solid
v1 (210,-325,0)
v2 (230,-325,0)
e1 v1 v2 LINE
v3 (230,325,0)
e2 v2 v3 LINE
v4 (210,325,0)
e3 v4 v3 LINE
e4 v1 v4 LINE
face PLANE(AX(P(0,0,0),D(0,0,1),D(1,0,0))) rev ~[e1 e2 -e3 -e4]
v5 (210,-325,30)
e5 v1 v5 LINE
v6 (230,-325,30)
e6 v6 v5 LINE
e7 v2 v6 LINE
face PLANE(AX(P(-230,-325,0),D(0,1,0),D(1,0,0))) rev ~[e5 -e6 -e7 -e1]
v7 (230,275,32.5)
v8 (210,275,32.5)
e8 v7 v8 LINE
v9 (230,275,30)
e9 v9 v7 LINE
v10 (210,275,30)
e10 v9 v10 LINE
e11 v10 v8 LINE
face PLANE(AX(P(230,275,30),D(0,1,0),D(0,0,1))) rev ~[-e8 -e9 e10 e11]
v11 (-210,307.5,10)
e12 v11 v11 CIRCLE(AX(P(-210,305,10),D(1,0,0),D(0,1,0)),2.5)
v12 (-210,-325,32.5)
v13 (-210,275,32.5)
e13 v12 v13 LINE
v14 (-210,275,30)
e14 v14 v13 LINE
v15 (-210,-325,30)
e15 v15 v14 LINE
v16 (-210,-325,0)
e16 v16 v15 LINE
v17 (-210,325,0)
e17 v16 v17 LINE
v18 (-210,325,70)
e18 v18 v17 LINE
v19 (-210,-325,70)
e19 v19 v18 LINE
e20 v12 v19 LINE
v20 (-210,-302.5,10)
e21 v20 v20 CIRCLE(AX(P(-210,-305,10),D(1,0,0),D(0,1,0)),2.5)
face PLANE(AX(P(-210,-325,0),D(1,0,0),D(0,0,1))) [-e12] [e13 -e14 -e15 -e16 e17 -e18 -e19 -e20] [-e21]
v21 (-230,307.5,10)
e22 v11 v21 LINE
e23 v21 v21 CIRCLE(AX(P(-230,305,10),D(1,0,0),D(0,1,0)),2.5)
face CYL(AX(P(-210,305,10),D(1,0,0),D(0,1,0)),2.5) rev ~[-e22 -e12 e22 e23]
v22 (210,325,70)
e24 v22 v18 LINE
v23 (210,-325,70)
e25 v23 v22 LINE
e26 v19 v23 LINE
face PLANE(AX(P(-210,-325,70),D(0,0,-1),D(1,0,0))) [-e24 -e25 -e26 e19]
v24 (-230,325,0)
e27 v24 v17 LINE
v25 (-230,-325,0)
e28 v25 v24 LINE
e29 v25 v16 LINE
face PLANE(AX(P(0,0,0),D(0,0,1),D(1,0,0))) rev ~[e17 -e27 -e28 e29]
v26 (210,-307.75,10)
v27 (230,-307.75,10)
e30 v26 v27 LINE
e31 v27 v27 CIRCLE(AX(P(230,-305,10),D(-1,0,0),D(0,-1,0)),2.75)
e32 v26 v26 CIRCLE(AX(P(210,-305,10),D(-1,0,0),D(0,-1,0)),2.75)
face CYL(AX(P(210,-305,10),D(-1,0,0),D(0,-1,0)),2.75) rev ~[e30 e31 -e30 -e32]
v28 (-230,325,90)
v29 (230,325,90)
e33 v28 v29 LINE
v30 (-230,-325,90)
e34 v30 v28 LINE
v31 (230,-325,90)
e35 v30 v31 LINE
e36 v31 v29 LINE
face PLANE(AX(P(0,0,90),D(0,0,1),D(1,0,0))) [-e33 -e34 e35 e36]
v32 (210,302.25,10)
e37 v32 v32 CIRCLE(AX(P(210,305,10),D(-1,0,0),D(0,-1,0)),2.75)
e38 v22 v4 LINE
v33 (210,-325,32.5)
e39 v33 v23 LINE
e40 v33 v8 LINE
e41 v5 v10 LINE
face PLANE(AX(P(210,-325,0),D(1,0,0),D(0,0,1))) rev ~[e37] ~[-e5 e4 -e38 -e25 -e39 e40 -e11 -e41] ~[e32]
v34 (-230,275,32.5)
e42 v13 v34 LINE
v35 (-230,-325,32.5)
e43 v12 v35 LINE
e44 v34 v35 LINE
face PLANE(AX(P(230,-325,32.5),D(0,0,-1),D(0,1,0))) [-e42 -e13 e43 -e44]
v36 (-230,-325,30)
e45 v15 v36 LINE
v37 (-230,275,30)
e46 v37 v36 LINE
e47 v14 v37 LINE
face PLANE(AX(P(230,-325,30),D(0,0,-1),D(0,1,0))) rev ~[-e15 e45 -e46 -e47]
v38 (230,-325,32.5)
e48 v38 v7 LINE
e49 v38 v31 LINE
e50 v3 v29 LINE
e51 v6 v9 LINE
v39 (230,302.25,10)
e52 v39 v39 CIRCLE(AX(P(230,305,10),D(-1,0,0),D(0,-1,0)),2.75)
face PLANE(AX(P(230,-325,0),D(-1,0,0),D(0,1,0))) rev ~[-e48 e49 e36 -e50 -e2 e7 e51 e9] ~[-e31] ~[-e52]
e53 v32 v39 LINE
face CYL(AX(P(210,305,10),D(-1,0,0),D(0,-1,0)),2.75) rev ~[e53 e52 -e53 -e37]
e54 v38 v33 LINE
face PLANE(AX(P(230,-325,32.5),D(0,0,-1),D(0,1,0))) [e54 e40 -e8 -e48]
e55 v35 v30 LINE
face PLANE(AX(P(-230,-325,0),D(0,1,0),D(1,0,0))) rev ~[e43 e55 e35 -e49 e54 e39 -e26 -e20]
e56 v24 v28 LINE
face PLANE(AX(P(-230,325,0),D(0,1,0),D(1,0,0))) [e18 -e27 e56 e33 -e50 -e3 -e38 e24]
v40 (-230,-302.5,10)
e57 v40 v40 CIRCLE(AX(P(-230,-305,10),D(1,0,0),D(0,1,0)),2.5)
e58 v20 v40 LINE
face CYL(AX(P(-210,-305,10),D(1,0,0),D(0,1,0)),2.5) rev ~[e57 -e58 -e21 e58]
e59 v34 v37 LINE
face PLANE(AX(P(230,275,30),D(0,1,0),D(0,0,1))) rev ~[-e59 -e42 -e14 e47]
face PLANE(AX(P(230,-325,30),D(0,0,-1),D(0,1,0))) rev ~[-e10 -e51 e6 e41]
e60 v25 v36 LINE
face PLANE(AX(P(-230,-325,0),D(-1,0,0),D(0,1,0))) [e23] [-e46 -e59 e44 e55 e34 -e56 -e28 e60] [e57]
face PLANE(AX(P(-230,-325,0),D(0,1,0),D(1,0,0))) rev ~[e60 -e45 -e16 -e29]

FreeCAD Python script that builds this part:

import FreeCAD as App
import Part
import Sketcher
from FreeCAD import Vector
Q = App.Units.Quantity


def add_polygon(sketch, points):
    """Adds a closed chain of lines whose ends are joined by coincident constraints."""
    first, n = sketch.GeometryCount, len(points)
    for a, b in zip(points, points[1:] + points[:1]):
        sketch.addGeometry(Part.LineSegment(App.Vector(*a, 0), App.Vector(*b, 0)), False)
    for i in range(n):
        sketch.addConstraint(Sketcher.Constraint("Coincident", first + i, 2, first + (i + 1) % n, 1))

doc = App.newDocument("Part")
body = doc.addObject("PartDesign::Body", "Body")

sketch1 = body.newObject("Sketcher::SketchObject", "Sketch")
sketch1.AttachmentSupport = (doc.getObject("XY_Plane"), [""])
sketch1.MapMode = "FlatFace"
add_polygon(sketch1, [(-230, 325), (-230, -325), (230, -325), (230, 325)])
sketch1.addConstraint([
    Sketcher.Constraint("Vertical", 0),
    Sketcher.Constraint("Horizontal", 1),
    Sketcher.Constraint("Vertical", 2),
    Sketcher.Constraint("Horizontal", 3),
    Sketcher.Constraint("Symmetric", 0, 2, 2, 2, -1, 1),
    Sketcher.Constraint("DistanceX", 1, 1, 1, 2, Q("460 mm")),
    Sketcher.Constraint("DistanceY", 0, 2, 0, 1, Q("650 mm")),
])
pad1 = body.newObject("PartDesign::Pad", "Pad")
pad1.Profile = sketch1
pad1.Length = 90

sketch2 = body.newObject("Sketcher::SketchObject", "Sketch001")
sketch2.AttachmentSupport = (doc.getObject("XZ_Plane"), [""])
sketch2.MapMode = "FlatFace"
sketch2.AttachmentOffset = App.Placement(Vector(0, 0, 325), App.Rotation())
add_polygon(sketch2, [(-210, 70), (-210, 0), (210, 0), (210, 70)])
sketch2.addConstraint([
    Sketcher.Constraint("Vertical", 0),
    Sketcher.Constraint("Horizontal", 1),
    Sketcher.Constraint("Vertical", 2),
    Sketcher.Constraint("Horizontal", 3),
    Sketcher.Constraint("Symmetric", 0, 2, 1, 2, -1, 1),
    Sketcher.Constraint("DistanceX", 1, 1, 1, 2, Q("420 mm")),
    Sketcher.Constraint("DistanceY", 0, 2, 0, 1, Q("70 mm")),
])
pocket1 = body.newObject("PartDesign::Pocket", "Pocket")
pocket1.Profile = sketch2
pocket1.Type = "ThroughAll"

sketch3 = body.newObject("Sketcher::SketchObject", "Sketch002")
sketch3.AttachmentSupport = (doc.getObject("YZ_Plane"), [""])
sketch3.MapMode = "FlatFace"
sketch3.AttachmentOffset = App.Placement(Vector(0, 0, 230), App.Rotation())
add_polygon(sketch3, [(-325, 32.5), (-325, 30), (275, 30), (275, 32.5)])
sketch3.addConstraint([
    Sketcher.Constraint("Vertical", 0),
    Sketcher.Constraint("Horizontal", 1),
    Sketcher.Constraint("Vertical", 2),
    Sketcher.Constraint("Horizontal", 3),
    Sketcher.Constraint("DistanceX", 1, 1, 1, 2, Q("600 mm")),
    Sketcher.Constraint("DistanceY", 0, 2, 0, 1, Q("2.5 mm")),
    Sketcher.Constraint("DistanceX", 0, 2, -1, 1, Q("325 mm")),
    Sketcher.Constraint("DistanceY", -1, 1, 0, 2, Q("30 mm")),
])
pocket2 = body.newObject("PartDesign::Pocket", "Pocket001")
pocket2.Profile = sketch3
pocket2.Type = "ThroughAll"

sketch4 = body.newObject("Sketcher::SketchObject", "Sketch003")
sketch4.AttachmentSupport = (doc.getObject("YZ_Plane"), [""])
sketch4.MapMode = "FlatFace"
sketch4.AttachmentOffset = App.Placement(Vector(0, 0, -210), App.Rotation())
sketch4.addGeometry([
    Part.Circle(Vector(305, 10, 0), Vector(0, 0, 1), 2.5),
    Part.Circle(Vector(-305, 10, 0), Vector(0, 0, 1), 2.5),
], False)
sketch4.addConstraint([
    Sketcher.Constraint("Equal", 0, 1),
    Sketcher.Constraint("Symmetric", 0, 3, 1, 3, -2),
    Sketcher.Constraint("Diameter", 0, Q("5 mm")),
    Sketcher.Constraint("DistanceX", -1, 1, 0, 3, Q("305 mm")),
    Sketcher.Constraint("DistanceY", -1, 1, 0, 3, Q("10 mm")),
])
pocket3 = body.newObject("PartDesign::Pocket", "Pocket002")
pocket3.Profile = sketch4
pocket3.Type = "ThroughAll"

sketch5 = body.newObject("Sketcher::SketchObject", "Sketch004")
sketch5.AttachmentSupport = (doc.getObject("YZ_Plane"), [""])
sketch5.MapMode = "FlatFace"
sketch5.AttachmentOffset = App.Placement(Vector(0, 0, 210), App.Rotation())
sketch5.addGeometry([
    Part.Circle(Vector(305, 10, 0), Vector(0, 0, 1), 2.75),
    Part.Circle(Vector(-305, 10, 0), Vector(0, 0, 1), 2.75),
], False)
sketch5.addConstraint([
    Sketcher.Constraint("Equal", 0, 1),
    Sketcher.Constraint("Symmetric", 0, 3, 1, 3, -2),
    Sketcher.Constraint("Diameter", 0, Q("5.5 mm")),
    Sketcher.Constraint("DistanceX", -1, 1, 0, 3, Q("305 mm")),
    Sketcher.Constraint("DistanceY", -1, 1, 0, 3, Q("10 mm")),
])
pocket4 = body.newObject("PartDesign::Pocket", "Pocket003")
pocket4.Profile = sketch5
pocket4.Type = "ThroughAll"
pocket4.Reversed = True

doc.recompute()
